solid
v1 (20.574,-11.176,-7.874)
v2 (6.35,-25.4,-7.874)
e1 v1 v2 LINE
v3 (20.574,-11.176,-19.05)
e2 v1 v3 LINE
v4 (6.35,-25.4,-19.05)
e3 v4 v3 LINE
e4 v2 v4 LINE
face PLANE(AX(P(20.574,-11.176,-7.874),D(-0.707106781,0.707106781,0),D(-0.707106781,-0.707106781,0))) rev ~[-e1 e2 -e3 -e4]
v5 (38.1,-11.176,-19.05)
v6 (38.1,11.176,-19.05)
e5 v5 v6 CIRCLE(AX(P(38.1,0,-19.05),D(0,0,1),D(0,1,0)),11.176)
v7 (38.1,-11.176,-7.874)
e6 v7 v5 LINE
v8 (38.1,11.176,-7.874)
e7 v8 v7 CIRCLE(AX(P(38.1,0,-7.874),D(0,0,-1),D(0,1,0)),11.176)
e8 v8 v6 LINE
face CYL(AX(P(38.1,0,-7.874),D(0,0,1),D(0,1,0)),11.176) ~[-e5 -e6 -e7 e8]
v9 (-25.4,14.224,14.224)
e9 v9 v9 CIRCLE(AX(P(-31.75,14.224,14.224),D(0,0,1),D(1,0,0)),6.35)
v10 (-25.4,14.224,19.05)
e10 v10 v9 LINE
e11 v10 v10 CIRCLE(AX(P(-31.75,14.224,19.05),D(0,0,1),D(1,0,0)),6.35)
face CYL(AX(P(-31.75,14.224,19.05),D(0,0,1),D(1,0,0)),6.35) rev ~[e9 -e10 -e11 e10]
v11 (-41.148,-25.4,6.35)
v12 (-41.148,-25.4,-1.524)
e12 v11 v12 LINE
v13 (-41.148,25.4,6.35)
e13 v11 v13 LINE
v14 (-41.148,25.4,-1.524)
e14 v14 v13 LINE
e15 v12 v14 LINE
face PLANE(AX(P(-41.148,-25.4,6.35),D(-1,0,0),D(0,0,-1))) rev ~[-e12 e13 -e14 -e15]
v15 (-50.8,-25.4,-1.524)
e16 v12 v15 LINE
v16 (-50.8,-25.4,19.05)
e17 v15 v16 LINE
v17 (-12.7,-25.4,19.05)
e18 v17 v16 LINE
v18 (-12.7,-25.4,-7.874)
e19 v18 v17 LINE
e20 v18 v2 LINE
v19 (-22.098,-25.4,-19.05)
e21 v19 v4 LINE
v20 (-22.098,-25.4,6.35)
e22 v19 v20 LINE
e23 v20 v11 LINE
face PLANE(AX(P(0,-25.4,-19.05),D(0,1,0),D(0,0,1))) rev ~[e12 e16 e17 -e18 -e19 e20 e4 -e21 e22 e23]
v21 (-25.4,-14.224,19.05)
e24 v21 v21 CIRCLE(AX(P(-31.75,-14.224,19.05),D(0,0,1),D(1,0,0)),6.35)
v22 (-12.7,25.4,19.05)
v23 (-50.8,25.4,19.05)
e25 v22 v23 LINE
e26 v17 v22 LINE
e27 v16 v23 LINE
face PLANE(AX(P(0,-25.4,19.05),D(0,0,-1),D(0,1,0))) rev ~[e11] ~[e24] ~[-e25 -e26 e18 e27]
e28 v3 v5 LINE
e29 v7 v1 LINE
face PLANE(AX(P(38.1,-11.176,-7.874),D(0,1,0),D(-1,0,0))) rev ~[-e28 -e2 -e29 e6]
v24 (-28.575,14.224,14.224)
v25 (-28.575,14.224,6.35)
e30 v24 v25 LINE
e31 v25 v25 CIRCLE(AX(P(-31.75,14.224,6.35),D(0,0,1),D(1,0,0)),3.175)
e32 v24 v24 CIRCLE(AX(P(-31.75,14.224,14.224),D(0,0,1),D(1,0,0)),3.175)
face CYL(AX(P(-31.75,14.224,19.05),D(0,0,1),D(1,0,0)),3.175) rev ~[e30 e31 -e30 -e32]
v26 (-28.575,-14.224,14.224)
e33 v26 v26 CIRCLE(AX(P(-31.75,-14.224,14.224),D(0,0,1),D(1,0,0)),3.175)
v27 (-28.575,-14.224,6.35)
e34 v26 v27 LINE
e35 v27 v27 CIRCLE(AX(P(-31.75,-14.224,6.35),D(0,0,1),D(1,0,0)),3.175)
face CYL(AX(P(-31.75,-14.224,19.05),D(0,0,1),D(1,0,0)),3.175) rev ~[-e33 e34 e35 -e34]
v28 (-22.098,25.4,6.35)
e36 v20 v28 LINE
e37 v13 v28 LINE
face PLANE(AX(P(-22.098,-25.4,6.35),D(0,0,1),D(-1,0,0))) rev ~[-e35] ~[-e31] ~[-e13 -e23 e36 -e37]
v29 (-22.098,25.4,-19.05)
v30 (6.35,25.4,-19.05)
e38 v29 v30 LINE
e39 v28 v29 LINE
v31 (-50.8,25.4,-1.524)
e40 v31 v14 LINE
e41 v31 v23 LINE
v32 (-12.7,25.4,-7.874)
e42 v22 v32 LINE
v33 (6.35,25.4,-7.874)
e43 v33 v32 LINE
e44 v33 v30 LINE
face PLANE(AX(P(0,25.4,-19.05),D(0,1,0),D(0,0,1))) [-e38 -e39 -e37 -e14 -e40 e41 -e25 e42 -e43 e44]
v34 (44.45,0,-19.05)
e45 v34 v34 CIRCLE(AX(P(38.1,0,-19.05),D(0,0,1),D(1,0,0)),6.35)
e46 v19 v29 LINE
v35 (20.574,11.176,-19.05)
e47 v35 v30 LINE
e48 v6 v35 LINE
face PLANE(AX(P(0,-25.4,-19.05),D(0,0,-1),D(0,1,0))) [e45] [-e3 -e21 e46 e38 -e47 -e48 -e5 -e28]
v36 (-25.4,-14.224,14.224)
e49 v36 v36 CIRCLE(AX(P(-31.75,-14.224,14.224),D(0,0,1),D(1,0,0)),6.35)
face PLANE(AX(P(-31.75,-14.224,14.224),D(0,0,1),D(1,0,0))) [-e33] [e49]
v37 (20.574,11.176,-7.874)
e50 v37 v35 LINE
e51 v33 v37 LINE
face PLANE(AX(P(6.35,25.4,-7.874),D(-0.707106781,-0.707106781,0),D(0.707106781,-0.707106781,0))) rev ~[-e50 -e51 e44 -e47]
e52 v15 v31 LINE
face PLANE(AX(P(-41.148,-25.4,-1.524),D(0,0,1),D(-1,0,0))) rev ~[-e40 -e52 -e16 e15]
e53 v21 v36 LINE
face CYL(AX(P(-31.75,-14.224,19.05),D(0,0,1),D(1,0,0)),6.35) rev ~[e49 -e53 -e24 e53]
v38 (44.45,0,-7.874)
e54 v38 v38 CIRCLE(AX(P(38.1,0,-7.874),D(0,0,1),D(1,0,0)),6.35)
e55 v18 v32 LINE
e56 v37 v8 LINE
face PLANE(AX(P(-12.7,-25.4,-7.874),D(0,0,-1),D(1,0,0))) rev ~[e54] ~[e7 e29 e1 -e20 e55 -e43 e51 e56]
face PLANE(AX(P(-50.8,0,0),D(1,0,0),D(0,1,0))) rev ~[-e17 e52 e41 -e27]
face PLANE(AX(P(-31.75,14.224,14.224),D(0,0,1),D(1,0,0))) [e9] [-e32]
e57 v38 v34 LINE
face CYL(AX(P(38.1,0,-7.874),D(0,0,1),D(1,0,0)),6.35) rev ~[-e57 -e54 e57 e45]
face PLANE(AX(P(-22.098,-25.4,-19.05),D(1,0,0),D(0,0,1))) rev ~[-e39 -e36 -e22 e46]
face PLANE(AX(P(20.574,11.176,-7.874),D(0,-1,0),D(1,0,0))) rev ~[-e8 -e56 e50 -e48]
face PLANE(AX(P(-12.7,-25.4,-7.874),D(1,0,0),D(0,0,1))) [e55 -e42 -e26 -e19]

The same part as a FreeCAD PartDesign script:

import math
import FreeCAD as App
import Part
import Sketcher

V = App.Vector
Q = App.Units.Quantity


def add_polygon(sketch, points):
    """Adds a closed chain of lines whose ends are joined by coincident constraints."""
    first, n = sketch.GeometryCount, len(points)
    for a, b in zip(points, points[1:] + points[:1]):
        sketch.addGeometry(Part.LineSegment(App.Vector(*a, 0), App.Vector(*b, 0)), False)
    for i in range(n):
        sketch.addConstraint(Sketcher.Constraint("Coincident", first + i, 2, first + (i + 1) % n, 1))

doc = App.newDocument("Part")
body = doc.addObject("PartDesign::Body", "Body")

sketch1 = body.newObject("Sketcher::SketchObject", "Sketch")
sketch1.AttachmentSupport = (doc.getObject("YZ_Plane"), [""])
sketch1.MapMode = "FlatFace"
add_polygon(sketch1, [(-25, 19), (-25, -19), (25, -19), (25, 19)])
sketch1.addConstraint(Sketcher.Constraint("Vertical", 0))
sketch1.addConstraint(Sketcher.Constraint("Horizontal", 1))
sketch1.addConstraint(Sketcher.Constraint("Vertical", 2))
sketch1.addConstraint(Sketcher.Constraint("Horizontal", 3))
sketch1.addConstraint(Sketcher.Constraint("Symmetric", 0, 2, 2, 2, -1, 1))
sketch1.addConstraint(Sketcher.Constraint("DistanceX", 1, 1, 1, 2, Q("2 in")))
sketch1.addConstraint(Sketcher.Constraint("DistanceY", 0, 2, 0, 1, Q("1.5 in")))
pad1 = body.newObject("PartDesign::Pad", "Pad")
pad1.Profile = sketch1
pad1.Length = Q("4 in")
pad1.Midplane = True

sketch2 = body.newObject("Sketcher::SketchObject", "Sketch001")
sketch2.AttachmentSupport = (doc.getObject("XY_Plane"), [""])
sketch2.MapMode = "FlatFace"
sketch2.AttachmentOffset = App.Placement(V(0, 0, 0.75 * 25.4), App.Rotation())
sketch2.addGeometry(Part.Circle(V(-31.8, -14.2, 0), V(0, 0, 1), 3.2), False)
sketch2.addGeometry(Part.Circle(V(-31.8, 14.2, 0), V(0, 0, 1), 3.2), False)
sketch2.addConstraint(Sketcher.Constraint("Equal", 0, 1))
sketch2.addConstraint(Sketcher.Constraint("Symmetric", 0, 3, 1, 3, -1))
sketch2.addConstraint(Sketcher.Constraint("Diameter", 0, Q("0.25 in")))
sketch2.addConstraint(Sketcher.Constraint("DistanceX", 0, 3, -1, 1, Q("1.25 in")))
sketch2.addConstraint(Sketcher.Constraint("DistanceY", 0, 3, -1, 1, Q("0.56 in")))
pocket1 = body.newObject("PartDesign::Pocket", "Pocket")
pocket1.Profile = sketch2
pocket1.Type = "ThroughAll"

sketch3 = body.newObject("Sketcher::SketchObject", "Sketch002")
sketch3.AttachmentSupport = (doc.getObject("XZ_Plane"), [""])
sketch3.MapMode = "FlatFace"
sketch3.AttachmentOffset = App.Placement(V(0, 0, 1 * 25.4), App.Rotation())
add_polygon(sketch3, [(-41, -2), (-51, -2), (-51, -19), (-22, -19), (-22, 6), (-41, 6)])
add_polygon(sketch3, [(-13, 19), (-13, -8), (51, -8), (51, 19)])
sketch3.addConstraint(Sketcher.Constraint("Horizontal", 0))
sketch3.addConstraint(Sketcher.Constraint("Vertical", 1))
sketch3.addConstraint(Sketcher.Constraint("Horizontal", 2))
sketch3.addConstraint(Sketcher.Constraint("Vertical", 3))
sketch3.addConstraint(Sketcher.Constraint("Horizontal", 4))
sketch3.addConstraint(Sketcher.Constraint("Vertical", 5))
sketch3.addConstraint(Sketcher.Constraint("Vertical", 6))
sketch3.addConstraint(Sketcher.Constraint("Horizontal", 7))
sketch3.addConstraint(Sketcher.Constraint("Vertical", 8))
sketch3.addConstraint(Sketcher.Constraint("Horizontal", 9))
sketch3.addConstraint(Sketcher.Constraint("Symmetric", 1, 2, 8, 2, -1, 1))
sketch3.addConstraint(Sketcher.Constraint("DistanceY", 3, 1, 3, 2, Q("1 in")))
sketch3.addConstraint(Sketcher.Constraint("DistanceX", 7, 1, 7, 2, Q("2.5 in")))
sketch3.addConstraint(Sketcher.Constraint("DistanceX", 0, 2, -1, 1, Q("2 in")))
sketch3.addConstraint(Sketcher.Constraint("DistanceX", 0, 2, 0, 1, Q("0.38 in")))
sketch3.addConstraint(Sketcher.Constraint("DistanceX", 2, 1, 2, 2, Q("1.13 in")))
sketch3.addConstraint(Sketcher.Constraint("DistanceY", 1, 2, 1, 1, Q("0.69 in")))
sketch3.addConstraint(Sketcher.Constraint("DistanceY", 6, 2, 6, 1, Q("1.06 in")))
sketch3.addConstraint(Sketcher.Constraint("DistanceY", 3, 2, 8, 2, Q("0.5 in")))
pocket2 = body.newObject("PartDesign::Pocket", "Pocket001")
pocket2.Profile = sketch3
pocket2.Type = "ThroughAll"

sketch4 = body.newObject("Sketcher::SketchObject", "Sketch003")
sketch4.AttachmentSupport = (doc.getObject("XY_Plane"), [""])
sketch4.MapMode = "FlatFace"
sketch4.AttachmentOffset = App.Placement(V(0, 0, -0.31 * 25.4), App.Rotation())
sketch4.addGeometry(Part.ArcOfCircle(Part.Circle(V(38, 0, 0), V(0, 0, 1), 11), math.radians(-90), math.radians(90)), False)
sketch4.addGeometry(Part.LineSegment(V(38, -11, 0), V(21, -11, 0)), False)
sketch4.addGeometry(Part.LineSegment(V(21, -11, 0), V(6, -25, 0)), False)
sketch4.addGeometry(Part.LineSegment(V(6, -25, 0), V(51, -25, 0)), False)
sketch4.addGeometry(Part.LineSegment(V(51, -25, 0), V(51, 25, 0)), False)
sketch4.addGeometry(Part.LineSegment(V(51, 25, 0), V(6, 25, 0)), False)
sketch4.addGeometry(Part.LineSegment(V(6, 25, 0), V(21, 11, 0)), False)
sketch4.addGeometry(Part.LineSegment(V(21, 11, 0), V(38, 11, 0)), False)
sketch4.addGeometry(Part.Circle(V(38, 0, 0), V(0, 0, 1), 6), False)
sketch4.addConstraint(Sketcher.Constraint("Tangent", 0, 1, 1, 1))
sketch4.addConstraint(Sketcher.Constraint("Coincident", 1, 2, 2, 1))
sketch4.addConstraint(Sketcher.Constraint("Coincident", 2, 2, 3, 1))
sketch4.addConstraint(Sketcher.Constraint("Coincident", 3, 2, 4, 1))
sketch4.addConstraint(Sketcher.Constraint("Coincident", 4, 2, 5, 1))
sketch4.addConstraint(Sketcher.Constraint("Coincident", 5, 2, 6, 1))
sketch4.addConstraint(Sketcher.Constraint("Coincident", 6, 2, 7, 1))
sketch4.addConstraint(Sketcher.Constraint("Tangent", 7, 2, 0, 2))
sketch4.addConstraint(Sketcher.Constraint("Horizontal", 1))
sketch4.addConstraint(Sketcher.Constraint("Horizontal", 3))
sketch4.addConstraint(Sketcher.Constraint("Vertical", 4))
sketch4.addConstraint(Sketcher.Constraint("Horizontal", 5))
sketch4.addConstraint(Sketcher.Constraint("Horizontal", 7))
sketch4.addConstraint(Sketcher.Constraint("Coincident", 8, 3, 0, 3))
sketch4.addConstraint(Sketcher.Constraint("Symmetric", 2, 2, 5, 2, -1))
sketch4.addConstraint(Sketcher.Constraint("Symmetric", 1, 2, 6, 2, -1))
sketch4.addConstraint(Sketcher.Constraint("Perpendicular", 2, 6))
sketch4.addConstraint(Sketcher.Constraint("Diameter", 8, Q("0.5 in")))
sketch4.addConstraint(Sketcher.Constraint("DistanceY", 4, 1, 4, 2, Q("2 in")))
sketch4.addConstraint(Sketcher.Constraint("Radius", 0, Q("0.44 in")))
sketch4.addConstraint(Sketcher.Constraint("DistanceX", -1, 1, 3, 2, Q("2 in")))
sketch4.addConstraint(Sketcher.Constraint("DistanceX", 1, 2, 1, 1, Q("0.69 in")))
sketch4.addConstraint(Sketcher.Constraint("DistanceX", 3, 1, 3, 2, Q("1.75 in")))
pocket3 = body.newObject("PartDesign::Pocket", "Pocket002")
pocket3.Profile = sketch4
pocket3.Type = "ThroughAll"

sketch5 = body.newObject("Sketcher::SketchObject", "Sketch004")
sketch5.AttachmentSupport = (doc.getObject("XY_Plane"), [""])
sketch5.MapMode = "FlatFace"
sketch5.AttachmentOffset = App.Placement(V(0, 0, 0.75 * 25.4), App.Rotation())
sketch5.addGeometry(Part.Circle(V(-32, 14, 0), V(0, 0, 1), 6), False)
sketch5.addGeometry(Part.Circle(V(-32, -14, 0), V(0, 0, 1), 6), False)
sketch5.addConstraint(Sketcher.Constraint("Equal", 0, 1))
sketch5.addConstraint(Sketcher.Constraint("Symmetric", 0, 3, 1, 3, -1))
sketch5.addConstraint(Sketcher.Constraint("Diameter", 0, Q("0.5 in")))
sketch5.addConstraint(Sketcher.Constraint("DistanceX", 0, 3, -1, 1, Q("1.25 in")))
sketch5.addConstraint(Sketcher.Constraint("DistanceY", -1, 1, 0, 3, Q("0.56 in")))
pocket4 = body.newObject("PartDesign::Pocket", "Pocket003")
pocket4.Profile = sketch5
pocket4.Length = Q("0.19 in")

doc.recompute()
